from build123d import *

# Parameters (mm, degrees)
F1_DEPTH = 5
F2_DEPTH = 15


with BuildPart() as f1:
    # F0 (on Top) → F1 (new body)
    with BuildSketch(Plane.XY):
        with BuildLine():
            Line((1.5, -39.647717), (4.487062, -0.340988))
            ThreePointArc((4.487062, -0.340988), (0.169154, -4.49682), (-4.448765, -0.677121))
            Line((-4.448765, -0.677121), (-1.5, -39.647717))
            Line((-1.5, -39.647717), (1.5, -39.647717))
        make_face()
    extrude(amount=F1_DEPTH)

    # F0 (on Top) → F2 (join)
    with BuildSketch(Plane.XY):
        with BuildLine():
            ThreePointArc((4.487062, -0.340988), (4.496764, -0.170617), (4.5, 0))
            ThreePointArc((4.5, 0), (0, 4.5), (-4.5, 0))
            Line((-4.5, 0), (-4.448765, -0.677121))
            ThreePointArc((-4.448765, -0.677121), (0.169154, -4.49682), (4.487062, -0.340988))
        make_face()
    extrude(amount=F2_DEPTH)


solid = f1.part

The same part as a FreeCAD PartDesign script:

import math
import FreeCAD as App
import Part
import Sketcher

doc = App.newDocument("Part")
body = doc.addObject("PartDesign::Body", "Body")

# Sketch on XY plane
sketch1 = body.newObject("Sketcher::SketchObject", "Sketch")
sketch1.AttachmentSupport = (doc.getObject("XY_Plane"), [""])
sketch1.MapMode = "FlatFace"
sketch1.addGeometry([
    Part.LineSegment(App.Vector(1.5, -39.6, 0), App.Vector(4.5, -0.3, 0)),
    Part.ArcOfCircle(Part.Circle(App.Vector(0, 0, 0), App.Vector(0, 0, 1), 4.5), math.radians(-171), math.radians(-4)),
    Part.LineSegment(App.Vector(-4.4, -0.7, 0), App.Vector(-1.5, -39.6, 0)),
    Part.LineSegment(App.Vector(-1.5, -39.6, 0), App.Vector(1.5, -39.6, 0)),
], False)
sketch1.addConstraint([
    Sketcher.Constraint("Tangent", 0, 2, 1, 2),
    Sketcher.Constraint("Coincident", 1, 1, 2, 1),
    Sketcher.Constraint("Coincident", 2, 2, 3, 1),
    Sketcher.Constraint("Coincident", 3, 2, 0, 1),
    Sketcher.Constraint("Horizontal", 3),
    Sketcher.Constraint("Coincident", 1, 3, -1, 1),
    Sketcher.Constraint("Radius", 1, 4.5),
    Sketcher.Constraint("DistanceX", 3, 1, 3, 2, 3.0),
    Sketcher.Constraint("DistanceX", 2, 2, -1, 1, 1.5),
    Sketcher.Constraint("DistanceY", 1, 1, -1, 1, 0.677121),
    Sketcher.Constraint("DistanceY", 2, 2, 0, 2, 39.306729),
])
pad1 = body.newObject("PartDesign::Pad", "Pad")
pad1.Profile = sketch1
pad1.Length = 5

# Sketch on XY plane
sketch2 = body.newObject("Sketcher::SketchObject", "Sketch001")
sketch2.AttachmentSupport = (doc.getObject("XY_Plane"), [""])
sketch2.MapMode = "FlatFace"
sketch2.addGeometry([
    Part.ArcOfCircle(Part.Circle(App.Vector(0, 0, 0), App.Vector(0, 0, 1), 4.5), math.radians(-4.35), math.radians(0)),
    Part.ArcOfCircle(Part.Circle(App.Vector(0, 0, 0), App.Vector(0, 0, 1), 4.5), math.radians(0), math.radians(180)),
    Part.LineSegment(App.Vector(-4.5, 0, 0), App.Vector(-4.45, -0.68, 0)),
    Part.ArcOfCircle(Part.Circle(App.Vector(0, 0, 0), App.Vector(0, 0, 1), 4.5), math.radians(-171), math.radians(-4)),
], False)
sketch2.addConstraint([
    Sketcher.Constraint("Coincident", 0, 2, 1, 1),
    Sketcher.Constraint("Coincident", 1, 2, 2, 1),
    Sketcher.Constraint("Coincident", 2, 2, 3, 1),
    Sketcher.Constraint("Coincident", 3, 2, 0, 1),
    Sketcher.Constraint("Coincident", 1, 3, -1, 1),
    Sketcher.Constraint("Coincident", 3, 3, -1, 1),
    Sketcher.Constraint("Equal", 1, 3),
    Sketcher.Constraint("PointOnObject", 0, 2, -1),
    Sketcher.Constraint("PointOnObject", 1, 2, -1),
    Sketcher.Constraint("Radius", 1, 4.5),
    Sketcher.Constraint("Radius", 0, 4.500382),
    Sketcher.Constraint("DistanceY", 2, 2, -1, 1, 0.677121),
    Sketcher.Constraint("DistanceY", 3, 2, -1, 1, 0.340988),
])
pad2 = body.newObject("PartDesign::Pad", "Pad001")
pad2.Profile = sketch2
pad2.Length = 15

doc.recompute()
